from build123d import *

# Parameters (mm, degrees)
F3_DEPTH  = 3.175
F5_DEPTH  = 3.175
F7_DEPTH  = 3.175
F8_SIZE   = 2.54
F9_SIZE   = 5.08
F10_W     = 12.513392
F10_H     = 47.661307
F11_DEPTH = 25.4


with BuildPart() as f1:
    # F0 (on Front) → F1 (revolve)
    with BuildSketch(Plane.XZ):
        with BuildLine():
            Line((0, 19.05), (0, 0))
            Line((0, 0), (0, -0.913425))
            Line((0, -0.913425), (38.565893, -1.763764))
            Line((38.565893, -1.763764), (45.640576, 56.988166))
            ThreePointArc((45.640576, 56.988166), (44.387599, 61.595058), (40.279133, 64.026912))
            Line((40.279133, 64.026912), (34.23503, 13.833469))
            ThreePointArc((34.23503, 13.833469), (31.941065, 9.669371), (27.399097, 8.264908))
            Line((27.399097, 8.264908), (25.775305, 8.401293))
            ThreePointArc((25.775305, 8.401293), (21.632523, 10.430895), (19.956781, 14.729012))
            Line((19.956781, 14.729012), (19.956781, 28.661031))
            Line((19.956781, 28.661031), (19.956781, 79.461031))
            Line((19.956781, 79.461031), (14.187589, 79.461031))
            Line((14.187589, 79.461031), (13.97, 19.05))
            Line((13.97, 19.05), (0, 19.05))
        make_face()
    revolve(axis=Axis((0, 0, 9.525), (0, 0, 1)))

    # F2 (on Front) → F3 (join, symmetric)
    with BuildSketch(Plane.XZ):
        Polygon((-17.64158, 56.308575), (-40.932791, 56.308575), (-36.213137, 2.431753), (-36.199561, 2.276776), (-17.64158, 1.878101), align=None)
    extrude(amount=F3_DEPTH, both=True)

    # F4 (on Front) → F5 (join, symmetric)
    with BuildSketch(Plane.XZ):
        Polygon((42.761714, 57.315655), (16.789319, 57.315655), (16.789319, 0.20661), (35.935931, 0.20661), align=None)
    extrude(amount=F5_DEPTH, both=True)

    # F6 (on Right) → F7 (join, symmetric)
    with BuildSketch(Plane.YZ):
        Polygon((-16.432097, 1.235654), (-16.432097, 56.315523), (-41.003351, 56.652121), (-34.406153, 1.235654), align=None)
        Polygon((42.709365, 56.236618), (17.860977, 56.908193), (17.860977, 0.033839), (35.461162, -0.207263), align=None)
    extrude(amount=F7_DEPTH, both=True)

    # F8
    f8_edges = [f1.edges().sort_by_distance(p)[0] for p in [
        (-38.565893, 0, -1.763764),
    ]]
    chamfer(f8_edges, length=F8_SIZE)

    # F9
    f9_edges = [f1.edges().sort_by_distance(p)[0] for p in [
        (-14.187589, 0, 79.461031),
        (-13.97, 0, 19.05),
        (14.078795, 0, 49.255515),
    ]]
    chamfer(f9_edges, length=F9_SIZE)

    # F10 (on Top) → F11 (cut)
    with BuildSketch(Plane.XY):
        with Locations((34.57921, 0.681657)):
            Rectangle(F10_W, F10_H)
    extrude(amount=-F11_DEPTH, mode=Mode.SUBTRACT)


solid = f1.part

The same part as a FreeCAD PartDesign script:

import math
import FreeCAD as App
import Part
import Sketcher
from FreeCAD import Vector
Q = App.Units.Quantity


def edges_at(feature, points):
    """Names of the edges that pass closest to the given points."""
    edges = feature.Shape.Edges
    near = lambda p: min(range(len(edges)), key=lambda i: edges[i].distToShape(Part.Vertex(*p))[0])
    return sorted({f"Edge{near(p) + 1}" for p in points})


def add_polygon(sketch, points):
    """Adds a closed chain of lines whose ends are joined by coincident constraints."""
    first, n = sketch.GeometryCount, len(points)
    for a, b in zip(points, points[1:] + points[:1]):
        sketch.addGeometry(Part.LineSegment(App.Vector(*a, 0), App.Vector(*b, 0)), False)
    for i in range(n):
        sketch.addConstraint(Sketcher.Constraint("Coincident", first + i, 2, first + (i + 1) % n, 1))

doc = App.newDocument("Part")
body = doc.addObject("PartDesign::Body", "Body")

sketch1 = body.newObject("Sketcher::SketchObject", "Sketch")
sketch1.AttachmentSupport = (doc.getObject("XZ_Plane"), [""])
sketch1.MapMode = "FlatFace"
sketch1.addGeometry([
    Part.LineSegment(Vector(0, 19.05, 0), Vector(0, -0.913425, 0)),
    Part.LineSegment(Vector(0, -0.913425, 0), Vector(38.565893, -1.763764, 0)),
    Part.LineSegment(Vector(38.565893, -1.763764, 0), Vector(45.640576, 56.988166, 0)),
    Part.ArcOfCircle(Part.Circle(Vector(39.336121, 57.747325, 0), Vector(0, 0, 1), 6.349999), math.radians(-6.866287), math.radians(81.459647)),
    Part.LineSegment(Vector(40.279133, 64.026912, 0), Vector(34.23503, 13.833469, 0)),
    Part.ArcOfCircle(Part.Circle(Vector(27.930573, 14.592627, 0), Vector(0, 0, 1), 6.35), math.radians(-94.801102), math.radians(-6.866277)),
    Part.LineSegment(Vector(27.399097, 8.264908, 0), Vector(25.775305, 8.401293, 0)),
    Part.ArcOfCircle(Part.Circle(Vector(26.306781, 14.729012, 0), Vector(0, 0, 1), 6.35), math.radians(-179.999999), math.radians(-94.801099)),
    Part.LineSegment(Vector(19.956781, 14.729012, 0), Vector(19.956781, 79.461031, 0)),
    Part.LineSegment(Vector(19.956781, 79.461031, 0), Vector(14.187589, 79.461031, 0)),
    Part.LineSegment(Vector(14.187589, 79.461031, 0), Vector(13.97, 19.05, 0)),
    Part.LineSegment(Vector(13.97, 19.05, 0), Vector(0, 19.05, 0)),
], False)
sketch1.addConstraint([
    Sketcher.Constraint("Coincident", 0, 2, 1, 1),
    Sketcher.Constraint("Coincident", 1, 2, 2, 1),
    Sketcher.Constraint("Coincident", 2, 2, 3, 1),
    Sketcher.Constraint("Coincident", 3, 2, 4, 1),
    Sketcher.Constraint("Coincident", 4, 2, 5, 2),
    Sketcher.Constraint("Coincident", 5, 1, 6, 1),
    Sketcher.Constraint("Coincident", 6, 2, 7, 2),
    Sketcher.Constraint("Coincident", 7, 1, 8, 1),
    Sketcher.Constraint("Coincident", 8, 2, 9, 1),
    Sketcher.Constraint("Coincident", 9, 2, 10, 1),
    Sketcher.Constraint("Coincident", 10, 2, 11, 1),
    Sketcher.Constraint("Coincident", 11, 2, 0, 1),
    Sketcher.Constraint("Vertical", 0),
    Sketcher.Constraint("Vertical", 8),
    Sketcher.Constraint("Horizontal", 9),
    Sketcher.Constraint("Horizontal", 11),
    Sketcher.Constraint("PointOnObject", 0, 2, -2),
    Sketcher.Constraint("Radius", 3, Q("0.2499999 in")),
    Sketcher.Constraint("Radius", 5, Q("0.25 in")),
    Sketcher.Constraint("Radius", 7, Q("0.25 in")),
    Sketcher.Constraint("DistanceX", 11, 2, 11, 1, Q("0.55 in")),
    Sketcher.Constraint("DistanceY", -1, 1, 10, 2, Q("0.75 in")),
    Sketcher.Constraint("DistanceX", -1, 1, 7, 3, Q("1.0357 in")),
    Sketcher.Constraint("DistanceY", 8, 1, 8, 2, Q("64.732019 mm")),
    Sketcher.Constraint("DistanceY", 7, 3, 3, 2, Q("49.2979 mm")),
    Sketcher.Constraint("Distance", 2, Q("59.17635 mm")),
    Sketcher.Constraint("Distance", 6, Q("1.62951 mm")),
    Sketcher.Constraint("DistanceX", 9, 2, 9, 1, Q("5.769192 mm")),
    Sketcher.Constraint("DistanceY", 0, 2, 0, 1, Q("19.963425 mm")),
    Sketcher.Constraint("DistanceX", -1, 1, 3, 3, Q("39.336121 mm")),
    Sketcher.Constraint("DistanceY", -1, 1, 3, 2, Q("64.026912 mm")),
    Sketcher.Constraint("DistanceX", -1, 1, 4, 2, Q("34.23503 mm")),
    Sketcher.Constraint("DistanceY", -1, 1, 4, 2, Q("13.833469 mm")),
    Sketcher.Constraint("DistanceY", -1, 1, 8, 2, Q("79.461031 mm")),
    Sketcher.Constraint("DistanceY", 0, 2, 3, 3, Q("58.66075 mm")),
    Sketcher.Constraint("DistanceX", 5, 3, 1, 2, Q("10.63532 mm")),
    Sketcher.Constraint("DistanceY", 1, 2, 5, 3, Q("16.356391 mm")),
    Sketcher.Constraint("DistanceY", 1, 2, 0, 2, Q("0.850339 mm")),
    Sketcher.Constraint("DistanceY", 5, 1, 5, 3, Q("6.327719 mm")),
])
revolution = body.newObject("PartDesign::Revolution", "Revolution")
revolution.Profile = sketch1
revolution.ReferenceAxis = (sketch1, ["V_Axis"])
revolution.Angle = 360

sketch2 = body.newObject("Sketcher::SketchObject", "Sketch001")
sketch2.AttachmentSupport = (doc.getObject("XZ_Plane"), [""])
sketch2.MapMode = "FlatFace"
add_polygon(sketch2, [(-17.64, 56.31), (-40.93, 56.31), (-36.21, 2.43), (-36.2, 2.28), (-17.64, 1.88)])
sketch2.addConstraint([
    Sketcher.Constraint("Horizontal", 0),
    Sketcher.Constraint("Vertical", 4),
    Sketcher.Constraint("Parallel", 1, 2),
    Sketcher.Constraint("DistanceX", 0, 2, 0, 1, Q("23.291211 mm")),
    Sketcher.Constraint("DistanceY", -1, 1, 3, 2, Q("1.878101 mm")),
    Sketcher.Constraint("DistanceY", 2, 2, 0, 2, Q("54.031799 mm")),
    Sketcher.Constraint("Distance", 1, Q("54.08315 mm")),
    Sketcher.Constraint("Distance", 2, Q("0.15557 mm")),
    Sketcher.Constraint("DistanceY", 4, 1, 4, 2, Q("54.430474 mm")),
    Sketcher.Constraint("DistanceX", 0, 2, -1, 1, Q("40.932791 mm")),
])
pad1 = body.newObject("PartDesign::Pad", "Pad")
pad1.Profile = sketch2
pad1.Length = Q("0.25 in")
pad1.Midplane = True

sketch3 = body.newObject("Sketcher::SketchObject", "Sketch002")
sketch3.AttachmentSupport = (doc.getObject("XZ_Plane"), [""])
sketch3.MapMode = "FlatFace"
add_polygon(sketch3, [(43, 57), (17, 57), (17, 0), (36, 0)])
sketch3.addConstraint([
    Sketcher.Constraint("Horizontal", 0),
    Sketcher.Constraint("Vertical", 1),
    Sketcher.Constraint("Horizontal", 2),
    Sketcher.Constraint("DistanceX", 2, 1, 2, 2, Q("19.146612 mm")),
    Sketcher.Constraint("DistanceX", 0, 2, 0, 1, Q("25.972395 mm")),
    Sketcher.Constraint("DistanceY", 1, 2, 1, 1, Q("57.109045 mm")),
    Sketcher.Constraint("DistanceX", -1, 1, 0, 2, Q("16.789319 mm")),
    Sketcher.Constraint("DistanceY", -1, 1, 1, 2, Q("0.20661 mm")),
])
pad2 = body.newObject("PartDesign::Pad", "Pad001")
pad2.Profile = sketch3
pad2.Length = Q("0.25 in")
pad2.Midplane = True

sketch4 = body.newObject("Sketcher::SketchObject", "Sketch003")
sketch4.AttachmentSupport = (doc.getObject("YZ_Plane"), [""])
sketch4.MapMode = "FlatFace"
add_polygon(sketch4, [(-16, 1), (-16, 56), (-41, 57), (-34, 1)])
add_polygon(sketch4, [(43, 56), (18, 57), (18, 0), (35, 0)])
sketch4.addConstraint([
    Sketcher.Constraint("Vertical", 0),
    Sketcher.Constraint("Horizontal", 3),
    Sketcher.Constraint("Vertical", 5),
    Sketcher.Constraint("Parallel", 1, 6),
    Sketcher.Constraint("DistanceY", 6, 2, 7, 2, Q("2.2222 in")),
    Sketcher.Constraint("DistanceY", 0, 1, 0, 2, Q("55.079869 mm")),
    Sketcher.Constraint("DistanceY", 0, 2, 1, 2, Q("0.336598 mm")),
    Sketcher.Constraint("Distance", 1, Q("24.573559 mm")),
    Sketcher.Constraint("Distance", 4, Q("24.857462 mm")),
    Sketcher.Constraint("DistanceX", 3, 1, 3, 2, Q("17.974056 mm")),
    Sketcher.Constraint("DistanceY", 5, 2, 5, 1, Q("56.874354 mm")),
    Sketcher.Constraint("DistanceX", 1, 2, -1, 1, Q("41.003351 mm")),
    Sketcher.Constraint("DistanceY", -1, 1, 1, 2, Q("56.652121 mm")),
    Sketcher.Constraint("DistanceY", -1, 1, 5, 2, Q("0.033839 mm")),
    Sketcher.Constraint("DistanceX", 2, 2, 4, 2, Q("52.26713 mm")),
    Sketcher.Constraint("DistanceX", 3, 2, 6, 2, Q("51.893259 mm")),
])
pad3 = body.newObject("PartDesign::Pad", "Pad002")
pad3.Profile = sketch4
pad3.Length = Q("0.25 in")
pad3.Midplane = True
doc.recompute()

chamfer = body.newObject("PartDesign::Chamfer", "Chamfer")
chamfer.Base = (pad3, edges_at(pad3, [(-38.566, 0, -1.764)]))
chamfer.Size = Q("0.1 in")
doc.recompute()

chamfer2 = body.newObject("PartDesign::Chamfer", "Chamfer001")
chamfer2.Base = (chamfer, edges_at(chamfer, [(-14.188, 0, 79.461), (-13.97, 0, 19.05), (14.079, 0, 49.256)]))
chamfer2.Size = Q("0.2 in")

sketch5 = body.newObject("Sketcher::SketchObject", "Sketch004")
sketch5.AttachmentSupport = (doc.getObject("XY_Plane"), [""])
sketch5.MapMode = "FlatFace"
add_polygon(sketch5, [(28, 25), (28, -23), (41, -23), (41, 25)])
sketch5.addConstraint([
    Sketcher.Constraint("Vertical", 0),
    Sketcher.Constraint("Horizontal", 1),
    Sketcher.Constraint("Vertical", 2),
    Sketcher.Constraint("Horizontal", 3),
    Sketcher.Constraint("DistanceX", 1, 1, 1, 2, Q("12.513392 mm")),
    Sketcher.Constraint("DistanceY", 0, 2, 0, 1, Q("47.661307 mm")),
    Sketcher.Constraint("DistanceY", -1, 1, 2, 2, Q("24.512311 mm")),
    Sketcher.Constraint("DistanceX", -1, 1, 0, 2, Q("28.322514 mm")),
])
pocket1 = body.newObject("PartDesign::Pocket", "Pocket")
pocket1.Profile = sketch5
pocket1.Length = Q("1 in")

doc.recompute()
